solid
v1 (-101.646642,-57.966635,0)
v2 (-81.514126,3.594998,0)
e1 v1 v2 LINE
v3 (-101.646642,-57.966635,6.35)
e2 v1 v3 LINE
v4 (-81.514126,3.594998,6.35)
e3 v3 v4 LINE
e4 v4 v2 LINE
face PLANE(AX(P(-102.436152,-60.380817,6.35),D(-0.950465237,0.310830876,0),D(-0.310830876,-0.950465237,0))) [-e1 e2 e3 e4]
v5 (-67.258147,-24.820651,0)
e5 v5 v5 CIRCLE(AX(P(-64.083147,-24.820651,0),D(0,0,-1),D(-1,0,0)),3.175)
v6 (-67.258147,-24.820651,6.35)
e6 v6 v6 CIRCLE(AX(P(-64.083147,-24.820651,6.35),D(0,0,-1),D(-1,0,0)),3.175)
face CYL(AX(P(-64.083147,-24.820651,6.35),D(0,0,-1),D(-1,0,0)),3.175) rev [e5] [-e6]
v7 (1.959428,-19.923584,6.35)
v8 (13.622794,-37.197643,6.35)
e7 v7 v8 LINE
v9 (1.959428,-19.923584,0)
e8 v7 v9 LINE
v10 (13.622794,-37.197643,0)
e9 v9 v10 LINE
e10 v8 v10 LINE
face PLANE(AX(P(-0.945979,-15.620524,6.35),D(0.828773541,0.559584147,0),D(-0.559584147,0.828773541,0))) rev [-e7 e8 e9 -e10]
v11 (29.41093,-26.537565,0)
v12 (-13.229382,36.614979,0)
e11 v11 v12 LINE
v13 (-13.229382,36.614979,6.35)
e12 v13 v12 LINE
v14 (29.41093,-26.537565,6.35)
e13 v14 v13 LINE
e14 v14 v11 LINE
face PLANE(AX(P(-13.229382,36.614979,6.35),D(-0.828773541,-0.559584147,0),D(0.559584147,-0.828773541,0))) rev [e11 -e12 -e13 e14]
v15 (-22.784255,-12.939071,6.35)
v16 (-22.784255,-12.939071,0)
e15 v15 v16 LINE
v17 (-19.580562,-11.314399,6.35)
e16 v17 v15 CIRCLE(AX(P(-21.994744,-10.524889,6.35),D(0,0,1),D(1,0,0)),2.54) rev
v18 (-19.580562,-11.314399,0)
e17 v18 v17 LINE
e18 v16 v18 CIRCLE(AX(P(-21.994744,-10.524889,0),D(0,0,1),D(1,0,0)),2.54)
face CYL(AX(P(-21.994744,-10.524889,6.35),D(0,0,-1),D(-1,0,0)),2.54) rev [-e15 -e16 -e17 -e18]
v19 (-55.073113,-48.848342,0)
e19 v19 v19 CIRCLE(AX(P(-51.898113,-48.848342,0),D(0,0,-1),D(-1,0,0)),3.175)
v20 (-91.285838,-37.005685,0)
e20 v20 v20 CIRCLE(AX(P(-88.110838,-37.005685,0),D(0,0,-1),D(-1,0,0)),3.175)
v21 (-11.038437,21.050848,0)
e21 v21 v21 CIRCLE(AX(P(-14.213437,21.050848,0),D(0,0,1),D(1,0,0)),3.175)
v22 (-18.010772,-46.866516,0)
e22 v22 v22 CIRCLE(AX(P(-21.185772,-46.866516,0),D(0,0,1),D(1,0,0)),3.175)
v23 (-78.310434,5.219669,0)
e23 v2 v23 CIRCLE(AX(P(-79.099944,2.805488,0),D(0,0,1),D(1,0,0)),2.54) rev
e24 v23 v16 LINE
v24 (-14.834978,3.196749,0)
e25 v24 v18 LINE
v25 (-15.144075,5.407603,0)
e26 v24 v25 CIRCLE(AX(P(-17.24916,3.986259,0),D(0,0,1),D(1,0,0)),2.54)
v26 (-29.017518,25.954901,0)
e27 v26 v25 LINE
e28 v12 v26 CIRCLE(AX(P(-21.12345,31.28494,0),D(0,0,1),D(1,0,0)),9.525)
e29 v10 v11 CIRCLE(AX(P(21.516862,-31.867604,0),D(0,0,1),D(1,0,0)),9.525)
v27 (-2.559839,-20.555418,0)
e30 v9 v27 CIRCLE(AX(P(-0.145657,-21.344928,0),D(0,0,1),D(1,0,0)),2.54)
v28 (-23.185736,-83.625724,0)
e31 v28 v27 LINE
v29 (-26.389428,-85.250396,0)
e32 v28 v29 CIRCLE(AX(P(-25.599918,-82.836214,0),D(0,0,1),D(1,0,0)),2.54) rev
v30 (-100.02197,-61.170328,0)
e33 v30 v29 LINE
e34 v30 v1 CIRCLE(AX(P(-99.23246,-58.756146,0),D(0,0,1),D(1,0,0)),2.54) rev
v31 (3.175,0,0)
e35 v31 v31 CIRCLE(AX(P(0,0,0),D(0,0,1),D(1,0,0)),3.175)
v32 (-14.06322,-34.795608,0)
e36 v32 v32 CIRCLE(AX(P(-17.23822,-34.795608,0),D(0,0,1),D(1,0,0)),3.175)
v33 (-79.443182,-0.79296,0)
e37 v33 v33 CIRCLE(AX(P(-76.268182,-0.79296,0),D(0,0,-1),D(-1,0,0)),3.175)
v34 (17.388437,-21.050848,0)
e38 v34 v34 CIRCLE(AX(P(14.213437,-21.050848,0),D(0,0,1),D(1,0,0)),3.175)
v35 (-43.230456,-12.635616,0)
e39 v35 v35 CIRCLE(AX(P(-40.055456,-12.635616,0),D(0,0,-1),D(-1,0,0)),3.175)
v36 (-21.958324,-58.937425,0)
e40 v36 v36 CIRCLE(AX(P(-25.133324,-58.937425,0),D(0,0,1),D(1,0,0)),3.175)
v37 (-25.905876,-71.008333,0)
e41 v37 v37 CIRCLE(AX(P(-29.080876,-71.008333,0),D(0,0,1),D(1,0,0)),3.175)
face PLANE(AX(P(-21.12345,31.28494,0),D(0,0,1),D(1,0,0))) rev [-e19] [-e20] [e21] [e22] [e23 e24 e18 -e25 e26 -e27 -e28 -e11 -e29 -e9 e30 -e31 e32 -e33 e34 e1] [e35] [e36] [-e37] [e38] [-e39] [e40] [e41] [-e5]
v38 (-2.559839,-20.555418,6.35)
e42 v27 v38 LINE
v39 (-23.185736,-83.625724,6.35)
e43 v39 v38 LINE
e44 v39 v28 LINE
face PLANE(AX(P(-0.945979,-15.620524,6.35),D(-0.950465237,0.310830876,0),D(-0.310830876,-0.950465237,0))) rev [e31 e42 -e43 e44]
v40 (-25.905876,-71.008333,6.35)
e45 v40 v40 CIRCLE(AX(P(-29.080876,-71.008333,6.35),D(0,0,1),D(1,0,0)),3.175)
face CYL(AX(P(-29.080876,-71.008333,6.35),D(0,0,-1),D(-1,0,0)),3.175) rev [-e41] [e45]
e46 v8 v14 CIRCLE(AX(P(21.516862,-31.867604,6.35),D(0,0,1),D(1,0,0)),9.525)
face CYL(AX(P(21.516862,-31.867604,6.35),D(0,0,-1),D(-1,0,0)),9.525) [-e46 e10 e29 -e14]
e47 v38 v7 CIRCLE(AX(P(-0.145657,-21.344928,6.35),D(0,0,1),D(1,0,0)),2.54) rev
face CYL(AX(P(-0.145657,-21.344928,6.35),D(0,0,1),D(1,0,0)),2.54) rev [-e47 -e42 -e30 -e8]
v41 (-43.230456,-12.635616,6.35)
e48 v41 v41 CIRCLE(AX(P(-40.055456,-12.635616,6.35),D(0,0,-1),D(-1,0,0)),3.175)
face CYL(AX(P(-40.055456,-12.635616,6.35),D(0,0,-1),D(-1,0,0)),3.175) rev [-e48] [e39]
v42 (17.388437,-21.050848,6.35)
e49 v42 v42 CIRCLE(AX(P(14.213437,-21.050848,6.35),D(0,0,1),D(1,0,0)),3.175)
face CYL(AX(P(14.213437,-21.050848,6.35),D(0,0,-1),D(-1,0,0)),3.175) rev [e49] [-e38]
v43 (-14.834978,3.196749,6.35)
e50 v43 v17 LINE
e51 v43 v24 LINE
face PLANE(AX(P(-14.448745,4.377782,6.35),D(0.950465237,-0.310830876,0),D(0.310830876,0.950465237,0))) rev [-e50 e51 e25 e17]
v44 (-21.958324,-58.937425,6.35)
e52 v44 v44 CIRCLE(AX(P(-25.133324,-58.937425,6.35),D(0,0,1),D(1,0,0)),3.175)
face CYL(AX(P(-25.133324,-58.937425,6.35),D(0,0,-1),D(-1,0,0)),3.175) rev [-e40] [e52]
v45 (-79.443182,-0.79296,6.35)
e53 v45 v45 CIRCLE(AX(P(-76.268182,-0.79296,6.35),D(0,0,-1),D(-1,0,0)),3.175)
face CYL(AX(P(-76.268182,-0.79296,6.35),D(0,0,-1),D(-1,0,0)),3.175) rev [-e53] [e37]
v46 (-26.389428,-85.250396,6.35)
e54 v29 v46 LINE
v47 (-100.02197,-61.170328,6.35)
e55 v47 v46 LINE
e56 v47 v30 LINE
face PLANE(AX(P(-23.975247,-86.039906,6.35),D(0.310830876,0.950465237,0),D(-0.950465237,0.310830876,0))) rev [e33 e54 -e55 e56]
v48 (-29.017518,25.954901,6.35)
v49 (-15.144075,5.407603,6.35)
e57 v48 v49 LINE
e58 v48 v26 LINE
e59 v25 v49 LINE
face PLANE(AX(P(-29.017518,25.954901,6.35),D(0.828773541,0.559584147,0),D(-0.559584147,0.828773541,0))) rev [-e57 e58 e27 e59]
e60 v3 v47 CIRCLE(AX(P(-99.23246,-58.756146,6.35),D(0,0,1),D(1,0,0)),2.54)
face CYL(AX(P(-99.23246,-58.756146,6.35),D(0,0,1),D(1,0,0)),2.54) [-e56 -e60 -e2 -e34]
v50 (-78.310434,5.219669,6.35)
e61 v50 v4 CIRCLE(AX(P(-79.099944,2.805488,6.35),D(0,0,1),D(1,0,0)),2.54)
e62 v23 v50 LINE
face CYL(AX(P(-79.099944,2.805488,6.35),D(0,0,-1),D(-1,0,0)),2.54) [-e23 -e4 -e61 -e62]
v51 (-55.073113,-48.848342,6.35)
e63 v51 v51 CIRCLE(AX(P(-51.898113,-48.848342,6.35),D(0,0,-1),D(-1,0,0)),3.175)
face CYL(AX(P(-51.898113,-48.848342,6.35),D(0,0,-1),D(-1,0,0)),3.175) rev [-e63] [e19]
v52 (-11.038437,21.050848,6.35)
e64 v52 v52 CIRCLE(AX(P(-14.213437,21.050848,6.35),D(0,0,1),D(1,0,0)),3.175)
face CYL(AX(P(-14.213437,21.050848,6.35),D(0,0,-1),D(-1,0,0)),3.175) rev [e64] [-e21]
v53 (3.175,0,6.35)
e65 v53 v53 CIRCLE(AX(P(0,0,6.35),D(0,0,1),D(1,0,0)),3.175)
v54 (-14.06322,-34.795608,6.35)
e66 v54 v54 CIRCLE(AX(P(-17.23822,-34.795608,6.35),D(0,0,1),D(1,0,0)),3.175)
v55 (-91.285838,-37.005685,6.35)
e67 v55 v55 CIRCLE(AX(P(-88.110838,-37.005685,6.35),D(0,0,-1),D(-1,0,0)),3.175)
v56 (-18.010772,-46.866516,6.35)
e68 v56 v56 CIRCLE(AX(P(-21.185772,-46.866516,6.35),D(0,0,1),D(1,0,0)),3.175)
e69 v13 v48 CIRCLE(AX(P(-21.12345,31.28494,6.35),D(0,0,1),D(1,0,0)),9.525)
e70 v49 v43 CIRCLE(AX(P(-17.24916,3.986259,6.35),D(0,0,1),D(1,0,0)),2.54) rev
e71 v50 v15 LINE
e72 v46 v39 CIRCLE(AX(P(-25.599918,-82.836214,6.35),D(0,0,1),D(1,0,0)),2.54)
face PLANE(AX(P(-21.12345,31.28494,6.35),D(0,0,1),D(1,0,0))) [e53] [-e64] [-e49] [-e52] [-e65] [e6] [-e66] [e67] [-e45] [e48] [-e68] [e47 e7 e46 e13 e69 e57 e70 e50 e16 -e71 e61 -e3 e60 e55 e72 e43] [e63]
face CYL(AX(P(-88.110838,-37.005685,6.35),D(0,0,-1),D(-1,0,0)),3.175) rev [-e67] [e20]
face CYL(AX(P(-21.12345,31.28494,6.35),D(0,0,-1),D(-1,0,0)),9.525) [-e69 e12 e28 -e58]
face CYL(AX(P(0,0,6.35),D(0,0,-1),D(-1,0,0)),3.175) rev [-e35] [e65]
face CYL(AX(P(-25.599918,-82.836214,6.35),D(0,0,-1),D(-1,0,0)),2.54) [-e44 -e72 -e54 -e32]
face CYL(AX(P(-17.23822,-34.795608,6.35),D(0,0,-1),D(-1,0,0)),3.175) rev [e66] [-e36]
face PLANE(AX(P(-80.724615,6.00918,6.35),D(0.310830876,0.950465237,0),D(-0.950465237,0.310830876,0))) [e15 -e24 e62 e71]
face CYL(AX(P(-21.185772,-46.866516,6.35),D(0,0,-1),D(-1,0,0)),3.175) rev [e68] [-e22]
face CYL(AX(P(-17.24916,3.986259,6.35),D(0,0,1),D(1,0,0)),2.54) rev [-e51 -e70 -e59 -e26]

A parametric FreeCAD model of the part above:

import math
import FreeCAD as App
import Part
import Sketcher

V = App.Vector
Q = App.Units.Quantity


def edges_at(feature, points):
    """Names of the edges that pass closest to the given points."""
    edges = feature.Shape.Edges
    near = lambda p: min(range(len(edges)), key=lambda i: edges[i].distToShape(Part.Vertex(*p))[0])
    return sorted({f"Edge{near(p) + 1}" for p in points})

doc = App.newDocument("Part")
params = doc.addObject("Spreadsheet::Sheet", "Params")
for row, (alias, value) in enumerate([
    ("sketch1_diameter", "0.25 in"),
    ("sketch1_length", "3 in"),
    ("sketch1_radius", "0.375 in"),
    ("sketch1_length2", "3.5 in"),
    ("sketch1_length3", "0.75 in"),
    ("pad1_length", "0.25 in"),
    ("sketch2_length", "2.5 in"),
    ("sketch2_length2", "2.75 in"),
    ("pad2_length", "0.25 in"),
    ("sketch3_diameter", "0.25 in"),
    ("pocket1_length", "0.25 in"),
    ("fillet_radius", "0.1 in"),
], start=1):
    params.set(f"A{row}", alias)
    params.set(f"B{row}", "=" + value)
    params.setAlias(f"B{row}", alias)

body = doc.addObject("PartDesign::Body", "Body")

# Sketch on XY plane
sketch1 = body.newObject("Sketcher::SketchObject", "Sketch")
sketch1.AttachmentSupport = (doc.getObject("XY_Plane"), [""])
sketch1.MapMode = "FlatFace"
sketch1.addGeometry([
    Part.LineSegment(V(29.4, -26.5, 0), V(-13.2, 36.6, 0)),  # 0
    Part.ArcOfCircle(Part.Circle(V(-21.1, 31.3, 0), V(0, 0, 1), 9.5), math.radians(34), math.radians(214)),  # 1
    Part.LineSegment(V(-29, 26, 0), V(-14.4, 4.4, 0)),  # 2
    Part.LineSegment(V(-14.4, 4.4, 0), V(-42.1, -80.1, 0)),  # 3
    Part.LineSegment(V(-42.1, -80.1, 0), V(-24, -86, 0)),  # 4
    Part.LineSegment(V(-24, -86, 0), V(-0.9, -15.6, 0)),  # 5
    Part.LineSegment(V(-0.9, -15.6, 0), V(13.6, -37.2, 0)),  # 6
    Part.ArcOfCircle(Part.Circle(V(21.5, -31.9, 0), V(0, 0, 1), 9.5), math.radians(-146), math.radians(34)),  # 7
    Part.Circle(V(-29.1, -71, 0), V(0, 0, 1), 3.2),  # 8
    Part.Circle(V(-25.1, -58.9, 0), V(0, 0, 1), 3.2),  # 9
    Part.Circle(V(-17.2, -34.8, 0), V(0, 0, 1), 3.2),  # 10
    Part.Circle(V(-21.2, -46.9, 0), V(0, 0, 1), 3.2),  # 11
    Part.Circle(V(14.2, -21.1, 0), V(0, 0, 1), 3.2),  # 12
    Part.Circle(V(0, 0, 0), V(0, 0, 1), 3.2),  # 13
    Part.Circle(V(-14.2, 21.1, 0), V(0, 0, 1), 3.2),  # 14
], False)
sketch1.addConstraint([
    Sketcher.Constraint("Tangent", 0, 2, 1, 1),
    Sketcher.Constraint("Tangent", 1, 2, 2, 1),
    Sketcher.Constraint("Coincident", 2, 2, 3, 1),
    Sketcher.Constraint("Coincident", 3, 2, 4, 1),
    Sketcher.Constraint("Coincident", 4, 2, 5, 1),
    Sketcher.Constraint("Coincident", 5, 2, 6, 1),
    Sketcher.Constraint("Tangent", 6, 2, 7, 1),
    Sketcher.Constraint("Tangent", 7, 2, 0, 1),
    Sketcher.Constraint("Coincident", 13, 3, -1, 1),
    Sketcher.Constraint("Equal", 1, 7),
    Sketcher.Constraint("Equal", 8, 9),
    Sketcher.Constraint("Equal", 9, 10),
    Sketcher.Constraint("Equal", 10, 11),
    Sketcher.Constraint("Equal", 11, 12),
    Sketcher.Constraint("Equal", 12, 13),
    Sketcher.Constraint("Equal", 13, 14),
    Sketcher.Constraint("Symmetric", 12, 3, 14, 3, -1, 1),
    Sketcher.Constraint("Parallel", 0, 2),
    Sketcher.Constraint("Perpendicular", 3, 4),
    Sketcher.Constraint("Perpendicular", 4, 5),
    Sketcher.Constraint("Parallel", 2, 6),
    Sketcher.Constraint("Equal", 2, 6),
    Sketcher.Constraint("Diameter", 8, Q("0.25 in")),
    Sketcher.Constraint("Distance", 0, Q("3 in")),
    Sketcher.Constraint("Radius", 1, Q("0.375 in")),
    Sketcher.Constraint("Distance", 3, Q("3.5 in")),
    Sketcher.Constraint("Distance", 4, Q("0.75 in")),
    Sketcher.Constraint("Distance", 2, Q("1.025 in")),
    Sketcher.Constraint("DistanceY", -1, 1, 1, 2, 25.954901),
    Sketcher.Constraint("DistanceX", 14, 3, 7, 3, 35.730299),
    Sketcher.Constraint("DistanceX", 1, 2, 10, 3, 11.779298),
    Sketcher.Constraint("DistanceY", 4, 2, 10, 3, 51.244298),
    Sketcher.Constraint("DistanceX", 1, 3, -1, 1, 21.12345),
    Sketcher.Constraint("DistanceY", -1, 1, 1, 3, 31.28494),
    Sketcher.Constraint("DistanceX", 11, 3, -1, 1, 21.185772),
    Sketcher.Constraint("DistanceX", 8, 3, 7, 3, 50.597738),
    Sketcher.Constraint("DistanceY", 8, 3, 7, 3, 39.140729),
    Sketcher.Constraint("DistanceY", 8, 3, 9, 3, 12.070909),
    Sketcher.Constraint("DistanceY", 11, 3, 10, 3, 12.070909),
    Sketcher.Constraint("DistanceY", 10, 3, 12, 3, 13.74476),
    Sketcher.Constraint("DistanceX", 9, 3, 12, 3, 39.346761),
])
sketch1.setExpression("Constraints[22]", "Params.sketch1_diameter")
sketch1.setExpression("Constraints[23]", "Params.sketch1_length")
sketch1.setExpression("Constraints[24]", "Params.sketch1_radius")
sketch1.setExpression("Constraints[25]", "Params.sketch1_length2")
sketch1.setExpression("Constraints[26]", "Params.sketch1_length3")
pad1 = body.newObject("PartDesign::Pad", "Pad")
pad1.Profile = sketch1
pad1.setExpression("Length", "Params.pad1_length")

# Sketch on XY plane
sketch2 = body.newObject("Sketcher::SketchObject", "Sketch001")
sketch2.AttachmentSupport = (doc.getObject("XY_Plane"), [""])
sketch2.MapMode = "FlatFace"
sketch2.addGeometry([
    Part.LineSegment(V(-20, -14, 0), V(-42, -80, 0)),
    Part.LineSegment(V(-42, -80, 0), V(-102, -60, 0)),
    Part.LineSegment(V(-102, -60, 0), V(-81, 6, 0)),
    Part.LineSegment(V(-81, 6, 0), V(-20, -14, 0)),
], False)
sketch2.addConstraint([
    Sketcher.Constraint("Coincident", 0, 2, 1, 1),
    Sketcher.Constraint("Coincident", 1, 2, 2, 1),
    Sketcher.Constraint("Coincident", 2, 2, 3, 1),
    Sketcher.Constraint("Coincident", 3, 2, 0, 1),
    Sketcher.Constraint("Perpendicular", 0, 1),
    Sketcher.Constraint("Perpendicular", 1, 2),
    Sketcher.Constraint("Perpendicular", 2, 3),
    Sketcher.Constraint("Distance", 1, Q("2.5 in")),
    Sketcher.Constraint("Distance", 0, Q("2.75 in")),
    Sketcher.Constraint("DistanceX", 0, 2, -1, 1, 42.08161),
    Sketcher.Constraint("DistanceY", -1, 1, 2, 2, 6.00918),
    Sketcher.Constraint("DistanceY", 3, 2, -1, 1, 13.728581),
])
sketch2.setExpression("Constraints[7]", "Params.sketch2_length")
sketch2.setExpression("Constraints[8]", "Params.sketch2_length2")
pad2 = body.newObject("PartDesign::Pad", "Pad001")
pad2.Profile = sketch2
pad2.setExpression("Length", "Params.pad2_length")

# Sketch on XY plane
sketch3 = body.newObject("Sketcher::SketchObject", "Sketch002")
sketch3.AttachmentSupport = (doc.getObject("XY_Plane"), [""])
sketch3.MapMode = "FlatFace"
sketch3.addGeometry([
    Part.Circle(V(-76.3, -0.8, 0), V(0, 0, 1), 3.2),  # 0
    Part.Circle(V(-40.1, -12.6, 0), V(0, 0, 1), 3.2),  # 1
    Part.Circle(V(-51.9, -48.8, 0), V(0, 0, 1), 3.2),  # 2
    Part.Circle(V(-88.1, -37, 0), V(0, 0, 1), 3.2),  # 3
    Part.Circle(V(-64.1, -24.8, 0), V(0, 0, 1), 3.2),  # 4
], False)
sketch3.addConstraint([
    Sketcher.Constraint("Equal", 0, 1),
    Sketcher.Constraint("Equal", 1, 2),
    Sketcher.Constraint("Equal", 2, 3),
    Sketcher.Constraint("Equal", 3, 4),
    Sketcher.Constraint("Diameter", 0, Q("0.25 in")),
    Sketcher.Constraint("DistanceX", 0, 3, -1, 1, 76.268182),
    Sketcher.Constraint("DistanceY", 0, 3, -1, 1, 0.79296),
    Sketcher.Constraint("DistanceY", 2, 3, -1, 1, 48.848342),
    Sketcher.Constraint("DistanceX", 3, 3, -1, 1, 88.110838),
    Sketcher.Constraint("DistanceY", 4, 3, -1, 1, 24.820651),
    Sketcher.Constraint("DistanceX", 0, 3, 2, 3, 24.370069),
    Sketcher.Constraint("DistanceX", 3, 3, 1, 3, 48.055382),
    Sketcher.Constraint("DistanceY", 3, 3, 1, 3, 24.370069),
    Sketcher.Constraint("DistanceX", 4, 3, 1, 3, 24.027691),
    Sketcher.Constraint("DistanceY", 1, 3, -1, 1, 12.635616),
])
sketch3.setExpression("Constraints[4]", "Params.sketch3_diameter")
pocket1 = body.newObject("PartDesign::Pocket", "Pocket")
pocket1.Profile = sketch3
pocket1.setExpression("Length", "Params.pocket1_length")
pocket1.Reversed = True
doc.recompute()

fillet = body.newObject("PartDesign::Fillet", "Fillet")
fillet.Base = (pocket1, edges_at(pocket1, [
    (-0.946, -15.621, 3.175),
    (-23.975, -86.04, 3.175),
    (-14.449, 4.378, 3.175),
    (-20.37, -13.729, 3.175),
    (-80.725, 6.009, 3.175),
    (-102.436, -60.381, 3.175),
]))
fillet.setExpression("Radius", "Params.fillet_radius")

doc.recompute()
